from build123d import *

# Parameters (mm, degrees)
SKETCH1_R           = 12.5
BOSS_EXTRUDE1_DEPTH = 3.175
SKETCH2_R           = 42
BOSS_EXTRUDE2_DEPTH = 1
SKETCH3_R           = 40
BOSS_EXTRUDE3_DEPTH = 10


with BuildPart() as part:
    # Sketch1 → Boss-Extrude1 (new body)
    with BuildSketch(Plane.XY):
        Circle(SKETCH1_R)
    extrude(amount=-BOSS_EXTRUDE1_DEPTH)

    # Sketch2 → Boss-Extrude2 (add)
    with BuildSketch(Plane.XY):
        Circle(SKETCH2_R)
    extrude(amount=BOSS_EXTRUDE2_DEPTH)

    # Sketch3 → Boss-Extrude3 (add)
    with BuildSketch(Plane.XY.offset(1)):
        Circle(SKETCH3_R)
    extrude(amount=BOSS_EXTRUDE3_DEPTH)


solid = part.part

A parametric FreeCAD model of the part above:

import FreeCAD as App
import Part
import Sketcher
from FreeCAD import Vector

doc = App.newDocument("Part")
body = doc.addObject("PartDesign::Body", "Body")

# Sketch on XY plane
sketch1 = doc.addObject("Sketcher::SketchObject", "Sketch")
body.addObject(sketch1)
sketch1.AttachmentSupport = (doc.XY_Plane, [""])
sketch1.MapMode = "FlatFace"
sketch1.addGeometry(Part.Circle(Vector(0, 0, 0), Vector(0, 0, 1), 12), False)
sketch1.addConstraint(Sketcher.Constraint("Coincident", 0, 3, -1, 1))
sketch1.addConstraint(Sketcher.Constraint("Diameter", 0, 25.0))
pad1 = doc.addObject("PartDesign::Pad", "Pad")
body.addObject(pad1)
pad1.Profile = sketch1
pad1.Length = 3.175
pad1.Reversed = True

# Sketch on XY plane
sketch2 = doc.addObject("Sketcher::SketchObject", "Sketch001")
body.addObject(sketch2)
sketch2.AttachmentSupport = (doc.XY_Plane, [""])
sketch2.MapMode = "FlatFace"
sketch2.addGeometry(Part.Circle(Vector(0, 0, 0), Vector(0, 0, 1), 42), False)
sketch2.addConstraint(Sketcher.Constraint("Coincident", 0, 3, -1, 1))
sketch2.addConstraint(Sketcher.Constraint("Diameter", 0, 84.0))
pad2 = doc.addObject("PartDesign::Pad", "Pad001")
body.addObject(pad2)
pad2.Profile = sketch2
pad2.Length = 1

# Sketch on XY plane
sketch3 = doc.addObject("Sketcher::SketchObject", "Sketch002")
body.addObject(sketch3)
sketch3.AttachmentSupport = (doc.XY_Plane, [""])
sketch3.MapMode = "FlatFace"
sketch3.AttachmentOffset = App.Placement(Vector(0, 0, 1), App.Rotation())
sketch3.addGeometry(Part.Circle(Vector(0, 0, 0), Vector(0, 0, 1), 40), False)
sketch3.addConstraint(Sketcher.Constraint("Coincident", 0, 3, -1, 1))
sketch3.addConstraint(Sketcher.Constraint("Diameter", 0, 80.0))
pad3 = doc.addObject("PartDesign::Pad", "Pad002")
body.addObject(pad3)
pad3.Profile = sketch3
pad3.Length = 10

doc.recompute()
